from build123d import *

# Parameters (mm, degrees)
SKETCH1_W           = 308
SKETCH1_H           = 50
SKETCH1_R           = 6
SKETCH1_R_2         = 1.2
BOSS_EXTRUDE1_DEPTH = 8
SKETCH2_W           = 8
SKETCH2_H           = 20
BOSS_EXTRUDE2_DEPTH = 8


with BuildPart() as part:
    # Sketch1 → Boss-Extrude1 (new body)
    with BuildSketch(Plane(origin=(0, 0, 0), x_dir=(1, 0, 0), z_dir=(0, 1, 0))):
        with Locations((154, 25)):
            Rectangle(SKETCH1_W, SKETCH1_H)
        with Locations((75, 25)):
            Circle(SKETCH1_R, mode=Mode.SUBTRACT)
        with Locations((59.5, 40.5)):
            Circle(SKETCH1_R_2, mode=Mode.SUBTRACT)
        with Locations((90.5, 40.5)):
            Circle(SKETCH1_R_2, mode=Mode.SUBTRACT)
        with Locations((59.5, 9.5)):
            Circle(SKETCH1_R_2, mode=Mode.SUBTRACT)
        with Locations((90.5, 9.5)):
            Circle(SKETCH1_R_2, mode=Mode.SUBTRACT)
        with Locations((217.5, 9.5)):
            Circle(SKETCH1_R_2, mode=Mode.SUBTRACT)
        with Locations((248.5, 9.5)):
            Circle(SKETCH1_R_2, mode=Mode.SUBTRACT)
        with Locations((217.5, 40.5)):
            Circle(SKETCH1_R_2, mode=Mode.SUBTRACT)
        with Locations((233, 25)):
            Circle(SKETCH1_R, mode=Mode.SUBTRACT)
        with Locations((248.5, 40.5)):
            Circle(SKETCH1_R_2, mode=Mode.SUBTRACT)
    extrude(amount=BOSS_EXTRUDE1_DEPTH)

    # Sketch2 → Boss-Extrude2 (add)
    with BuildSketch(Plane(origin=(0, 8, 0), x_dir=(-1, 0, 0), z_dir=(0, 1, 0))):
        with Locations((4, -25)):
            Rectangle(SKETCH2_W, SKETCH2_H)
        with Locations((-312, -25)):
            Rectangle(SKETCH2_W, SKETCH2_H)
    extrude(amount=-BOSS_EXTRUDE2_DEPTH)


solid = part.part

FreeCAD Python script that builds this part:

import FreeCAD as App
import Part
import Sketcher
Q = App.Units.Quantity

doc = App.newDocument("Part")
body = doc.addObject("PartDesign::Body", "Body")

sketch1 = body.newObject("Sketcher::SketchObject", "Sketch")
sketch1.AttachmentSupport = (doc.getObject("XZ_Plane"), [""])
sketch1.MapMode = "FlatFace"
sketch1.addGeometry([
    Part.LineSegment(App.Vector(0, -50, 0), App.Vector(0, 0, 0)),
    Part.LineSegment(App.Vector(0, 0, 0), App.Vector(308, 0, 0)),
    Part.LineSegment(App.Vector(308, 0, 0), App.Vector(308, -50, 0)),
    Part.LineSegment(App.Vector(308, -50, 0), App.Vector(0, -50, 0)),
    Part.Circle(App.Vector(59.5, -9.5, 0), App.Vector(0, 0, 1), 1.2),
    Part.Circle(App.Vector(90.5, -9.5, 0), App.Vector(0, 0, 1), 1.2),
    Part.Circle(App.Vector(217.5, -9.5, 0), App.Vector(0, 0, 1), 1.2),
    Part.Circle(App.Vector(248.5, -9.5, 0), App.Vector(0, 0, 1), 1.2),
    Part.Circle(App.Vector(75, -25, 0), App.Vector(0, 0, 1), 6),
    Part.Circle(App.Vector(59.5, -40.5, 0), App.Vector(0, 0, 1), 1.2),
    Part.Circle(App.Vector(90.5, -40.5, 0), App.Vector(0, 0, 1), 1.2),
    Part.Circle(App.Vector(233, -25, 0), App.Vector(0, 0, 1), 6),
    Part.Circle(App.Vector(217.5, -40.5, 0), App.Vector(0, 0, 1), 1.2),
    Part.Circle(App.Vector(248.5, -40.5, 0), App.Vector(0, 0, 1), 1.2),
], False)
sketch1.addConstraint([
    Sketcher.Constraint("Coincident", 0, 2, 1, 1),
    Sketcher.Constraint("Coincident", 1, 2, 2, 1),
    Sketcher.Constraint("Coincident", 2, 2, 3, 1),
    Sketcher.Constraint("Coincident", 3, 2, 0, 1),
    Sketcher.Constraint("Vertical", 0),
    Sketcher.Constraint("Horizontal", 1),
    Sketcher.Constraint("Vertical", 2),
    Sketcher.Constraint("Horizontal", 3),
    Sketcher.Constraint("Coincident", 0, 2, -1, 1),
    Sketcher.Constraint("Equal", 4, 5),
    Sketcher.Constraint("Equal", 5, 6),
    Sketcher.Constraint("Equal", 6, 7),
    Sketcher.Constraint("Equal", 7, 9),
    Sketcher.Constraint("Equal", 9, 10),
    Sketcher.Constraint("Equal", 8, 11),
    Sketcher.Constraint("Equal", 10, 12),
    Sketcher.Constraint("Equal", 12, 13),
    Sketcher.Constraint("Horizontal", 4, 3, 5, 3),
    Sketcher.Constraint("Horizontal", 5, 3, 6, 3),
    Sketcher.Constraint("Horizontal", 6, 3, 7, 3),
    Sketcher.Constraint("Horizontal", 9, 3, 10, 3),
    Sketcher.Constraint("Horizontal", 8, 3, 11, 3),
    Sketcher.Constraint("Horizontal", 10, 3, 12, 3),
    Sketcher.Constraint("Horizontal", 12, 3, 13, 3),
    Sketcher.Constraint("Vertical", 4, 3, 9, 3),
    Sketcher.Constraint("Vertical", 5, 3, 10, 3),
    Sketcher.Constraint("Vertical", 6, 3, 12, 3),
    Sketcher.Constraint("Vertical", 7, 3, 13, 3),
    Sketcher.Constraint("Diameter", 8, Q("12 mm")),
    Sketcher.Constraint("Diameter", 4, Q("2.4 mm")),
    Sketcher.Constraint("DistanceX", 1, 1, 1, 2, Q("308 mm")),
    Sketcher.Constraint("DistanceY", 0, 1, 0, 2, Q("50 mm")),
    Sketcher.Constraint("DistanceX", -1, 1, 8, 3, Q("75 mm")),
    Sketcher.Constraint("DistanceY", 8, 3, -1, 1, Q("25 mm")),
    Sketcher.Constraint("DistanceX", -1, 1, 11, 3, Q("233 mm")),
    Sketcher.Constraint("DistanceX", 4, 3, 5, 3, Q("31 mm")),
    Sketcher.Constraint("DistanceX", 5, 3, 6, 3, Q("127 mm")),
    Sketcher.Constraint("DistanceX", 6, 3, 7, 3, Q("31 mm")),
    Sketcher.Constraint("DistanceY", 9, 3, 4, 3, Q("31 mm")),
    Sketcher.Constraint("DistanceX", -1, 1, 4, 3, Q("59.5 mm")),
    Sketcher.Constraint("DistanceY", 4, 3, -1, 1, Q("9.5 mm")),
])
pad1 = body.newObject("PartDesign::Pad", "Pad")
pad1.Profile = sketch1
pad1.Length = 8
pad1.Reversed = True

sketch2 = body.newObject("Sketcher::SketchObject", "Sketch001")
sketch2.AttachmentSupport = (doc.getObject("XZ_Plane"), [""])
sketch2.MapMode = "FlatFace"
sketch2.AttachmentOffset = App.Placement(App.Vector(0, 0, -8), App.Rotation())
sketch2.addGeometry([
    Part.LineSegment(App.Vector(0, -15, 0), App.Vector(0, -35, 0)),
    Part.LineSegment(App.Vector(0, -35, 0), App.Vector(-8, -35, 0)),
    Part.LineSegment(App.Vector(-8, -35, 0), App.Vector(-8, -15, 0)),
    Part.LineSegment(App.Vector(-8, -15, 0), App.Vector(0, -15, 0)),
    Part.LineSegment(App.Vector(316, -15, 0), App.Vector(316, -35, 0)),
    Part.LineSegment(App.Vector(316, -35, 0), App.Vector(308, -35, 0)),
    Part.LineSegment(App.Vector(308, -35, 0), App.Vector(308, -15, 0)),
    Part.LineSegment(App.Vector(308, -15, 0), App.Vector(316, -15, 0)),
], False)
sketch2.addConstraint([
    Sketcher.Constraint("Coincident", 0, 2, 1, 1),
    Sketcher.Constraint("Coincident", 1, 2, 2, 1),
    Sketcher.Constraint("Coincident", 2, 2, 3, 1),
    Sketcher.Constraint("Coincident", 3, 2, 0, 1),
    Sketcher.Constraint("Coincident", 4, 2, 5, 1),
    Sketcher.Constraint("Coincident", 5, 2, 6, 1),
    Sketcher.Constraint("Coincident", 6, 2, 7, 1),
    Sketcher.Constraint("Coincident", 7, 2, 4, 1),
    Sketcher.Constraint("Vertical", 0),
    Sketcher.Constraint("Horizontal", 1),
    Sketcher.Constraint("Vertical", 2),
    Sketcher.Constraint("Horizontal", 3),
    Sketcher.Constraint("Vertical", 4),
    Sketcher.Constraint("Horizontal", 5),
    Sketcher.Constraint("Vertical", 6),
    Sketcher.Constraint("Horizontal", 7),
    Sketcher.Constraint("PointOnObject", 0, 2, -2),
    Sketcher.Constraint("Horizontal", 1, 2, 4, 2),
    Sketcher.Constraint("Horizontal", 3, 2, 6, 2),
    Sketcher.Constraint("Equal", 3, 5),
    Sketcher.Constraint("DistanceX", 1, 2, 1, 1, Q("8 mm")),
    Sketcher.Constraint("DistanceY", 0, 2, 0, 1, Q("20 mm")),
    Sketcher.Constraint("DistanceY", 0, 2, -1, 1, Q("35 mm")),
    Sketcher.Constraint("DistanceX", -1, 1, 4, 2, Q("316 mm")),
])
pad2 = body.newObject("PartDesign::Pad", "Pad001")
pad2.Profile = sketch2
pad2.Length = 8

doc.recompute()
